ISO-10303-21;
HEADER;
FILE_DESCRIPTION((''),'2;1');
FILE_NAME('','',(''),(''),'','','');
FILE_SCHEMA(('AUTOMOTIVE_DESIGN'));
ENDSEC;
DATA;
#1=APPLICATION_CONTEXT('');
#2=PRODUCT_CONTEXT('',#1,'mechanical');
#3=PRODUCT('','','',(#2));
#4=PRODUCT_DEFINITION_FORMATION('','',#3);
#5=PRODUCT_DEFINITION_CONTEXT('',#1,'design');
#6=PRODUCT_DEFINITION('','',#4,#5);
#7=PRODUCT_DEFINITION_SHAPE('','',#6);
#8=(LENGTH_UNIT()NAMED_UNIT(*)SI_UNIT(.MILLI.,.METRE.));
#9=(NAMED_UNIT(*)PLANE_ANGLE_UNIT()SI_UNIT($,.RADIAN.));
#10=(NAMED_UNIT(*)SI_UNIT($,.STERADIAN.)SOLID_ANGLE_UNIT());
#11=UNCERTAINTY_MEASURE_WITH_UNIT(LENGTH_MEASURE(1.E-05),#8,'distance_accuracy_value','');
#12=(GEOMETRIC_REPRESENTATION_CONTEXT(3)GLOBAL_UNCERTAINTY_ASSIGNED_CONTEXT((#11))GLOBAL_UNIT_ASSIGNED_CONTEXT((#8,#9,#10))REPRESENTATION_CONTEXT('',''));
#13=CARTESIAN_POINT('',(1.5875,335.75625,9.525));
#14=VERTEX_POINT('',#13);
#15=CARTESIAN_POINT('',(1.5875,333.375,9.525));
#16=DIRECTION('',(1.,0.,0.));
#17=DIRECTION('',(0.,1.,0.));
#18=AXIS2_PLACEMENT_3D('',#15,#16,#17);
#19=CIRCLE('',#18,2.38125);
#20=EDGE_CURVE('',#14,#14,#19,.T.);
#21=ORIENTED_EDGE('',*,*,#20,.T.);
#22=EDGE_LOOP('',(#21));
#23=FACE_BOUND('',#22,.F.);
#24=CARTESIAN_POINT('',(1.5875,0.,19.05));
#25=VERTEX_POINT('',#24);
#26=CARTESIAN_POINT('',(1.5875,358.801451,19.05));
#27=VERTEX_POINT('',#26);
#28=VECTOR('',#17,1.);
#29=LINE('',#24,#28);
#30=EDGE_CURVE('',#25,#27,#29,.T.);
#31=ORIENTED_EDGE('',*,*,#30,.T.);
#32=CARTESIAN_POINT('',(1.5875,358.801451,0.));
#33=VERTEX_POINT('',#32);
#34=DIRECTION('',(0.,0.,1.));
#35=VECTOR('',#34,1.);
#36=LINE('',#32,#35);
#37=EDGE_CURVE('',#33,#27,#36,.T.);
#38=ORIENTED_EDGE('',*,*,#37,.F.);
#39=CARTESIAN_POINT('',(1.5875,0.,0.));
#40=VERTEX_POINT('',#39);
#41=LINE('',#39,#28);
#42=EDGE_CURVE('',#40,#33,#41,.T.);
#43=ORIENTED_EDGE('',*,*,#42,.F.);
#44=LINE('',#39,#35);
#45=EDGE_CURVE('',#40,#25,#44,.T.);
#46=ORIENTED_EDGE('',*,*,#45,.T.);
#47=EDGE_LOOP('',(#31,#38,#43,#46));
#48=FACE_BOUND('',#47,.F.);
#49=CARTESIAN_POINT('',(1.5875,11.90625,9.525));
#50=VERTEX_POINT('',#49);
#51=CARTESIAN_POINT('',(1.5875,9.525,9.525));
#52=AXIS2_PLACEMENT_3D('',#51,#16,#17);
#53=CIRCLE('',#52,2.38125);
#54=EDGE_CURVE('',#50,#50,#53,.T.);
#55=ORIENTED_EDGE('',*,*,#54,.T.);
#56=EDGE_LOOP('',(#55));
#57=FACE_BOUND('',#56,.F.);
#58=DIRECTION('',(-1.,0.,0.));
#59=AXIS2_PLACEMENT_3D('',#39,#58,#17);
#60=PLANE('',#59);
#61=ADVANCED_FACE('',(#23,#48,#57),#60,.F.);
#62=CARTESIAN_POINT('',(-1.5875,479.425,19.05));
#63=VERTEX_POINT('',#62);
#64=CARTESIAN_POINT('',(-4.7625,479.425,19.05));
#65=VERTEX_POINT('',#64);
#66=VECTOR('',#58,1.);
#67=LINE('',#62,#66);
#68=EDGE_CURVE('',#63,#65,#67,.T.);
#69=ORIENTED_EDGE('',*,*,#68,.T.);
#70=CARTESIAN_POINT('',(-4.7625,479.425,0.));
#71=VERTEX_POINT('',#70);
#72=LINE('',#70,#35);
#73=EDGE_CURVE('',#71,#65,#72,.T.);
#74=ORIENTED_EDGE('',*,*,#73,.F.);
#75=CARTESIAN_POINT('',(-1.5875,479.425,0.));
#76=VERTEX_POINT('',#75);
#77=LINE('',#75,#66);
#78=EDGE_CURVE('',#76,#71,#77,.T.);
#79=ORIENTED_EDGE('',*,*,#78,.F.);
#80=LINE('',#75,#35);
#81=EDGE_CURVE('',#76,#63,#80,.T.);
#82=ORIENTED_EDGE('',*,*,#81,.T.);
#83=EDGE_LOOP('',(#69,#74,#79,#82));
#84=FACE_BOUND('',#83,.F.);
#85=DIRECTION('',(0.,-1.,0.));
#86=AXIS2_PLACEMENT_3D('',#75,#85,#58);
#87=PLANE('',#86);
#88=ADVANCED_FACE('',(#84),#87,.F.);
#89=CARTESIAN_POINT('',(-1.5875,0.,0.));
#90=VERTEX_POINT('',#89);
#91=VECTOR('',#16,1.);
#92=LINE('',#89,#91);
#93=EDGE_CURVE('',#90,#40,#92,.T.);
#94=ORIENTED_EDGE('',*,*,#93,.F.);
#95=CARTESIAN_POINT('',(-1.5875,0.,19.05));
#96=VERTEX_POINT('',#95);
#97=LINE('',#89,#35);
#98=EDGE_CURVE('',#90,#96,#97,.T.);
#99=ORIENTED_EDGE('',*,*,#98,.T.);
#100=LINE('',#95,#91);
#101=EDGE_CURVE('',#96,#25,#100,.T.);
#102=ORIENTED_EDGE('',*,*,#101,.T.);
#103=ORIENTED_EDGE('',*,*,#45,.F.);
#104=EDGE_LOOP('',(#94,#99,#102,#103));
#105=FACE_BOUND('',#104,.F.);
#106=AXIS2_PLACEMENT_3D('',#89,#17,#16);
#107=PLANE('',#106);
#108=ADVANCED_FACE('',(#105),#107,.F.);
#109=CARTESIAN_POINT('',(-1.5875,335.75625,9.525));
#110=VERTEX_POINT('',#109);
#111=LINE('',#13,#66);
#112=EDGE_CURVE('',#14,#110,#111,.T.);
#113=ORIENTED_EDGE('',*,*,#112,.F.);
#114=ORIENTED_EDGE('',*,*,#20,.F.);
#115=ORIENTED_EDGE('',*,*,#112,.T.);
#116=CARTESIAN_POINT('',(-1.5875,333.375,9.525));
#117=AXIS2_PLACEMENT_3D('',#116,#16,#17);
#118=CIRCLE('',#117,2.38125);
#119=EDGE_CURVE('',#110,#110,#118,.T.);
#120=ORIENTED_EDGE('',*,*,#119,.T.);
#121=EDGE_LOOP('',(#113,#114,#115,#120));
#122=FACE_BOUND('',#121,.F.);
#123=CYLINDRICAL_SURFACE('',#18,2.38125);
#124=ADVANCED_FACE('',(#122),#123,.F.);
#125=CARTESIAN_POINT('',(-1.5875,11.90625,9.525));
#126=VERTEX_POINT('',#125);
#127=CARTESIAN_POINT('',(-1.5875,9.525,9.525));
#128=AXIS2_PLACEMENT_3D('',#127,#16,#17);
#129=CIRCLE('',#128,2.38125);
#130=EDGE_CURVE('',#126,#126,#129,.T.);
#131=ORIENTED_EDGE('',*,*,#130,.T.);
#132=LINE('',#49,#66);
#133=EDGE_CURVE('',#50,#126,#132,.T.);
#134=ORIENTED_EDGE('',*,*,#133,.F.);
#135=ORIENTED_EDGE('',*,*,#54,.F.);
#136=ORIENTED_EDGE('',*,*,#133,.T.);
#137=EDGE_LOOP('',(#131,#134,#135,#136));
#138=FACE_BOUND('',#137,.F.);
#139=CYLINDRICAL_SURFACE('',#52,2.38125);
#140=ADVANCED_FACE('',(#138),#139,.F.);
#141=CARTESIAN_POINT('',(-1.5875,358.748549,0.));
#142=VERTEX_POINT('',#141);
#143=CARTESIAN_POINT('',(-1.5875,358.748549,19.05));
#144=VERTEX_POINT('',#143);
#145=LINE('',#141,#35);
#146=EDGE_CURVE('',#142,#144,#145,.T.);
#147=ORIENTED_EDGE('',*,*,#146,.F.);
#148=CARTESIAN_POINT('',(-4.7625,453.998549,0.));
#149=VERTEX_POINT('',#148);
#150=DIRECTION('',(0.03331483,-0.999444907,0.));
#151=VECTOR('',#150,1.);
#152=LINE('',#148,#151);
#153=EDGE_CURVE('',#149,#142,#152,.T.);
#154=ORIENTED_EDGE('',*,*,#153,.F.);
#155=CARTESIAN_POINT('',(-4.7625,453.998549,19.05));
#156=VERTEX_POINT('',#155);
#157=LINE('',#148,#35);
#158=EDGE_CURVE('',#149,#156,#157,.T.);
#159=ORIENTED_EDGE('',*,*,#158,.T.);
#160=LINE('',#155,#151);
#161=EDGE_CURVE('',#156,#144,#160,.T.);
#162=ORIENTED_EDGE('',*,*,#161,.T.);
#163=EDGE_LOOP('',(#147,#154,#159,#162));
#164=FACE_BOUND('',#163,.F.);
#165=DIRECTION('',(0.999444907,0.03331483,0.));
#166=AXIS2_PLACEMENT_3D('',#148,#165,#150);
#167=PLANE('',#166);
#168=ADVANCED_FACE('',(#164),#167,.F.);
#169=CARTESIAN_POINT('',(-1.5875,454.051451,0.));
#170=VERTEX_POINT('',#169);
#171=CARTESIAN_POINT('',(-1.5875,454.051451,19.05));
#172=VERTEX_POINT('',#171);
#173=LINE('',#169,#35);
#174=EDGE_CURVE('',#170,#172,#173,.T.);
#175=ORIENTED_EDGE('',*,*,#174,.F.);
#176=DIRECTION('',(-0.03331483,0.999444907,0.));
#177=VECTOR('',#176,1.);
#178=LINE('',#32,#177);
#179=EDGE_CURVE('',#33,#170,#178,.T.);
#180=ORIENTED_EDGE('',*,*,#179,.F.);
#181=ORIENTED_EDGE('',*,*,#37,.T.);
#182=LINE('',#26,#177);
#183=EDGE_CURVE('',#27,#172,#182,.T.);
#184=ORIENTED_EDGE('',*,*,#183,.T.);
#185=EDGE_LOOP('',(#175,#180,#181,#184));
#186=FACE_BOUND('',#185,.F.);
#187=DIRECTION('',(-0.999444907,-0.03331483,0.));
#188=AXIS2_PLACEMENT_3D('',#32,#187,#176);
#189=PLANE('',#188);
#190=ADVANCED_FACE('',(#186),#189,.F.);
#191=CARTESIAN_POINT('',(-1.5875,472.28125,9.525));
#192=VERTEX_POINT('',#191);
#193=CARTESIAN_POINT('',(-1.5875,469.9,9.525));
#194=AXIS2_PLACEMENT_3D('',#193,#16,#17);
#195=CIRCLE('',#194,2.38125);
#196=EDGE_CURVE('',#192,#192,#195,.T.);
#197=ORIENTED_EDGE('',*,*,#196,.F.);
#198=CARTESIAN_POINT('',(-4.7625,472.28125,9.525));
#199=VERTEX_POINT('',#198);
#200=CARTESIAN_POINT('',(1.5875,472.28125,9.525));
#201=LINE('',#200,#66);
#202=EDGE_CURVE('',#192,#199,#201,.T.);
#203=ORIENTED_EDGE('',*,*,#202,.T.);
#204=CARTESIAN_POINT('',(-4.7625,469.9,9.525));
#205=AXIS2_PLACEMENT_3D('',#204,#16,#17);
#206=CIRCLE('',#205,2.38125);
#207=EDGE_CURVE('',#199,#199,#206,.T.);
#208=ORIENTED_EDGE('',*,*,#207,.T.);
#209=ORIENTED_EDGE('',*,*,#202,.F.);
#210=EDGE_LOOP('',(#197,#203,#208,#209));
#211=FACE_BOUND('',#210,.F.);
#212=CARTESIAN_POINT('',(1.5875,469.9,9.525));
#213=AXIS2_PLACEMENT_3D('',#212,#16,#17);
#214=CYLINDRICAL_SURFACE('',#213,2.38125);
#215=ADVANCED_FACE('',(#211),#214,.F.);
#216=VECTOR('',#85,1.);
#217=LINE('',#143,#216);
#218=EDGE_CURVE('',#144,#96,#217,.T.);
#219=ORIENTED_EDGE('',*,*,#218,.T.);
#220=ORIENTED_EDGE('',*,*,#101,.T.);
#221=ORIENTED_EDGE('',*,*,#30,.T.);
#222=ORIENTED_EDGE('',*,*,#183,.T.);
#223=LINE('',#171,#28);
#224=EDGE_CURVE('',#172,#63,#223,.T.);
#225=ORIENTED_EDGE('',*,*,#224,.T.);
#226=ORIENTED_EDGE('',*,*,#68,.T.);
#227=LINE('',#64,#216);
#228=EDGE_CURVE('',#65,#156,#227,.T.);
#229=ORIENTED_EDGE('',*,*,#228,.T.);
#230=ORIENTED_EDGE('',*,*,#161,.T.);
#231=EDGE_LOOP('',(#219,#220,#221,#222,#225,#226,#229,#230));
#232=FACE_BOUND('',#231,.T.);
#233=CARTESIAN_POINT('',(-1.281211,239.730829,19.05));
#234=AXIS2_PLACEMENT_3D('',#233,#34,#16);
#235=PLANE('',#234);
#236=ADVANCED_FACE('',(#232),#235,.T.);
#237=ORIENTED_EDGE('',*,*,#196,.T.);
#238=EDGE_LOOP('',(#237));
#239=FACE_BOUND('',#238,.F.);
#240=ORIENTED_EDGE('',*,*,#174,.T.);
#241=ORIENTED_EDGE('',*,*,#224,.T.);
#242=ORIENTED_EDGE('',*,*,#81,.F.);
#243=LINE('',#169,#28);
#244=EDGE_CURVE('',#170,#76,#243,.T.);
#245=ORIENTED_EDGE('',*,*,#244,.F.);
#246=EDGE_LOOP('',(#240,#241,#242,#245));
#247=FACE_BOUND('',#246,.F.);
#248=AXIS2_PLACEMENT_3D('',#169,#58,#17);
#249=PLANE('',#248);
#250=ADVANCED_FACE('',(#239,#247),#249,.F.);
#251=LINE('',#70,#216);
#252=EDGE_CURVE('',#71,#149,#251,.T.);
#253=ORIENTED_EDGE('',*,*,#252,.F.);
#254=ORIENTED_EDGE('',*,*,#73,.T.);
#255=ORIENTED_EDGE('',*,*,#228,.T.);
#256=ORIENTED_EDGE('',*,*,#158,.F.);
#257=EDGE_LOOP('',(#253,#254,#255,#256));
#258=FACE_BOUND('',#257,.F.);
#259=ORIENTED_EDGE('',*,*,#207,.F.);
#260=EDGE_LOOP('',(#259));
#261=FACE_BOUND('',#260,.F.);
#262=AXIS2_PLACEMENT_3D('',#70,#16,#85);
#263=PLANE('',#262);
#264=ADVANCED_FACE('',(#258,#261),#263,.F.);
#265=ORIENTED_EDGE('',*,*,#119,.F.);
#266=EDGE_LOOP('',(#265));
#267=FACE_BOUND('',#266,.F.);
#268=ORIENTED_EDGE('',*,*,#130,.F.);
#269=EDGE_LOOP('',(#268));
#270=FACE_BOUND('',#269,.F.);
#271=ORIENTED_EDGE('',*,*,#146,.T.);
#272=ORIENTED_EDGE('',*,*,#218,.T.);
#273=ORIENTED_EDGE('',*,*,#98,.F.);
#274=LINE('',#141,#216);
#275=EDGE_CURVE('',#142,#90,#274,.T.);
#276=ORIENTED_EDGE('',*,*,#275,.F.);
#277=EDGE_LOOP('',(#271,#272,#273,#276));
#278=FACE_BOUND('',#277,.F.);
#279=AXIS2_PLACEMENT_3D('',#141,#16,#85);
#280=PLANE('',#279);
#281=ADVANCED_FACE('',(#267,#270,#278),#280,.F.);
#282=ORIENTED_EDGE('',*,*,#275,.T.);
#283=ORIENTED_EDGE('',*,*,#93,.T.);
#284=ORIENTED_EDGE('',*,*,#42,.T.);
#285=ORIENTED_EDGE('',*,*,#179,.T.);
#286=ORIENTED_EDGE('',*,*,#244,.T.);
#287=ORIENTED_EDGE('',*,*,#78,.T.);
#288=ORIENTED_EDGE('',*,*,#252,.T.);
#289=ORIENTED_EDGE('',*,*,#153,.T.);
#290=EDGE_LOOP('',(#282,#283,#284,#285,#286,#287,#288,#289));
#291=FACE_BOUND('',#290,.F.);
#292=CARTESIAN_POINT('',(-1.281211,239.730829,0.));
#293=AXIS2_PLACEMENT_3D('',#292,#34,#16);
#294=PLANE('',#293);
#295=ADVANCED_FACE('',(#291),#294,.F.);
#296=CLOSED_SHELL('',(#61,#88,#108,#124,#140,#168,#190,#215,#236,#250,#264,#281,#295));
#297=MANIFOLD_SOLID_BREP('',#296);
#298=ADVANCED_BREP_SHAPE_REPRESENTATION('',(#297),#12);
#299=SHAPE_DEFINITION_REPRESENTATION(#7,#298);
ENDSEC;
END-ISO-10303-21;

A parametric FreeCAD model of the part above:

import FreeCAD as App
import Part
import Sketcher
from FreeCAD import Vector
Q = App.Units.Quantity

doc = App.newDocument("Part")
body = doc.addObject("PartDesign::Body", "Body")

# Sketch on XY plane
sketch1 = body.newObject("Sketcher::SketchObject", "Sketch")
sketch1.AttachmentSupport = (doc.getObject("XY_Plane"), [""])
sketch1.MapMode = "FlatFace"
sketch1.addGeometry([
    Part.LineSegment(Vector(-1.6, 0, 0), Vector(1.6, 0, 0)),  # 0
    Part.LineSegment(Vector(1.6, 0, 0), Vector(1.6, 358.8, 0)),  # 1
    Part.LineSegment(Vector(1.6, 358.8, 0), Vector(-1.6, 454.1, 0)),  # 2
    Part.LineSegment(Vector(-1.6, 454.1, 0), Vector(-1.6, 479.4, 0)),  # 3
    Part.LineSegment(Vector(-1.6, 479.4, 0), Vector(-4.8, 479.4, 0)),  # 4
    Part.LineSegment(Vector(-4.8, 479.4, 0), Vector(-4.8, 454, 0)),  # 5
    Part.LineSegment(Vector(-4.8, 454, 0), Vector(-1.6, 358.7, 0)),  # 6
    Part.LineSegment(Vector(-1.6, 358.7, 0), Vector(-1.6, 0, 0)),  # 7
], False)
sketch1.addConstraint([
    Sketcher.Constraint("Coincident", 0, 2, 1, 1),
    Sketcher.Constraint("Coincident", 1, 2, 2, 1),
    Sketcher.Constraint("Coincident", 2, 2, 3, 1),
    Sketcher.Constraint("Coincident", 3, 2, 4, 1),
    Sketcher.Constraint("Coincident", 4, 2, 5, 1),
    Sketcher.Constraint("Coincident", 5, 2, 6, 1),
    Sketcher.Constraint("Coincident", 6, 2, 7, 1),
    Sketcher.Constraint("Coincident", 7, 2, 0, 1),
    Sketcher.Constraint("Horizontal", 0),
    Sketcher.Constraint("Vertical", 1),
    Sketcher.Constraint("Vertical", 3),
    Sketcher.Constraint("Horizontal", 4),
    Sketcher.Constraint("Vertical", 5),
    Sketcher.Constraint("Vertical", 7),
    Sketcher.Constraint("Symmetric", 0, 2, 7, 2, -1, 1),
    Sketcher.Constraint("Parallel", 2, 6),
    Sketcher.Constraint("Vertical", 3, 2, 6, 2),
    Sketcher.Constraint("Equal", 0, 4),
    Sketcher.Constraint("DistanceX", 0, 1, 0, 2, Q("0.125 in")),
    Sketcher.Constraint("DistanceY", 1, 2, 2, 2, Q("3.75 in")),
    Sketcher.Constraint("DistanceY", -1, 1, 3, 2, Q("18.875 in")),
    Sketcher.Constraint("DistanceY", 1, 1, 1, 2, Q("358.801451 mm")),
    Sketcher.Constraint("DistanceY", 5, 2, 5, 1, Q("25.426451 mm")),
])
pad1 = body.newObject("PartDesign::Pad", "Pad")
pad1.Profile = sketch1
pad1.Length = Q("0.75 in")

# Sketch on YZ plane
sketch2 = body.newObject("Sketcher::SketchObject", "Sketch001")
sketch2.AttachmentSupport = (doc.getObject("YZ_Plane"), [""])
sketch2.MapMode = "FlatFace"
sketch2.AttachmentOffset = App.Placement(Vector(0, 0, 0.0625 * 25.4), App.Rotation())
sketch2.addGeometry([
    Part.Circle(Vector(9.5, 9.5, 0), Vector(0, 0, 1), 2.4),
    Part.Circle(Vector(469.9, 9.5, 0), Vector(0, 0, 1), 2.4),
    Part.Circle(Vector(333.4, 9.5, 0), Vector(0, 0, 1), 2.4),
], False)
sketch2.addConstraint([
    Sketcher.Constraint("Equal", 0, 1),
    Sketcher.Constraint("Equal", 1, 2),
    Sketcher.Constraint("Horizontal", 0, 3, 1, 3),
    Sketcher.Constraint("Horizontal", 1, 3, 2, 3),
    Sketcher.Constraint("Diameter", 0, Q("0.1875 in")),
    Sketcher.Constraint("DistanceX", -1, 1, 1, 3, Q("18.5 in")),
    Sketcher.Constraint("DistanceX", 0, 3, 2, 3, Q("12.75 in")),
    Sketcher.Constraint("DistanceX", -1, 1, 0, 3, Q("0.375 in")),
    Sketcher.Constraint("DistanceY", -1, 1, 0, 3, Q("0.375 in")),
])
pocket1 = body.newObject("PartDesign::Pocket", "Pocket")
pocket1.Profile = sketch2
pocket1.Length = Q("0.25 in")

doc.recompute()
